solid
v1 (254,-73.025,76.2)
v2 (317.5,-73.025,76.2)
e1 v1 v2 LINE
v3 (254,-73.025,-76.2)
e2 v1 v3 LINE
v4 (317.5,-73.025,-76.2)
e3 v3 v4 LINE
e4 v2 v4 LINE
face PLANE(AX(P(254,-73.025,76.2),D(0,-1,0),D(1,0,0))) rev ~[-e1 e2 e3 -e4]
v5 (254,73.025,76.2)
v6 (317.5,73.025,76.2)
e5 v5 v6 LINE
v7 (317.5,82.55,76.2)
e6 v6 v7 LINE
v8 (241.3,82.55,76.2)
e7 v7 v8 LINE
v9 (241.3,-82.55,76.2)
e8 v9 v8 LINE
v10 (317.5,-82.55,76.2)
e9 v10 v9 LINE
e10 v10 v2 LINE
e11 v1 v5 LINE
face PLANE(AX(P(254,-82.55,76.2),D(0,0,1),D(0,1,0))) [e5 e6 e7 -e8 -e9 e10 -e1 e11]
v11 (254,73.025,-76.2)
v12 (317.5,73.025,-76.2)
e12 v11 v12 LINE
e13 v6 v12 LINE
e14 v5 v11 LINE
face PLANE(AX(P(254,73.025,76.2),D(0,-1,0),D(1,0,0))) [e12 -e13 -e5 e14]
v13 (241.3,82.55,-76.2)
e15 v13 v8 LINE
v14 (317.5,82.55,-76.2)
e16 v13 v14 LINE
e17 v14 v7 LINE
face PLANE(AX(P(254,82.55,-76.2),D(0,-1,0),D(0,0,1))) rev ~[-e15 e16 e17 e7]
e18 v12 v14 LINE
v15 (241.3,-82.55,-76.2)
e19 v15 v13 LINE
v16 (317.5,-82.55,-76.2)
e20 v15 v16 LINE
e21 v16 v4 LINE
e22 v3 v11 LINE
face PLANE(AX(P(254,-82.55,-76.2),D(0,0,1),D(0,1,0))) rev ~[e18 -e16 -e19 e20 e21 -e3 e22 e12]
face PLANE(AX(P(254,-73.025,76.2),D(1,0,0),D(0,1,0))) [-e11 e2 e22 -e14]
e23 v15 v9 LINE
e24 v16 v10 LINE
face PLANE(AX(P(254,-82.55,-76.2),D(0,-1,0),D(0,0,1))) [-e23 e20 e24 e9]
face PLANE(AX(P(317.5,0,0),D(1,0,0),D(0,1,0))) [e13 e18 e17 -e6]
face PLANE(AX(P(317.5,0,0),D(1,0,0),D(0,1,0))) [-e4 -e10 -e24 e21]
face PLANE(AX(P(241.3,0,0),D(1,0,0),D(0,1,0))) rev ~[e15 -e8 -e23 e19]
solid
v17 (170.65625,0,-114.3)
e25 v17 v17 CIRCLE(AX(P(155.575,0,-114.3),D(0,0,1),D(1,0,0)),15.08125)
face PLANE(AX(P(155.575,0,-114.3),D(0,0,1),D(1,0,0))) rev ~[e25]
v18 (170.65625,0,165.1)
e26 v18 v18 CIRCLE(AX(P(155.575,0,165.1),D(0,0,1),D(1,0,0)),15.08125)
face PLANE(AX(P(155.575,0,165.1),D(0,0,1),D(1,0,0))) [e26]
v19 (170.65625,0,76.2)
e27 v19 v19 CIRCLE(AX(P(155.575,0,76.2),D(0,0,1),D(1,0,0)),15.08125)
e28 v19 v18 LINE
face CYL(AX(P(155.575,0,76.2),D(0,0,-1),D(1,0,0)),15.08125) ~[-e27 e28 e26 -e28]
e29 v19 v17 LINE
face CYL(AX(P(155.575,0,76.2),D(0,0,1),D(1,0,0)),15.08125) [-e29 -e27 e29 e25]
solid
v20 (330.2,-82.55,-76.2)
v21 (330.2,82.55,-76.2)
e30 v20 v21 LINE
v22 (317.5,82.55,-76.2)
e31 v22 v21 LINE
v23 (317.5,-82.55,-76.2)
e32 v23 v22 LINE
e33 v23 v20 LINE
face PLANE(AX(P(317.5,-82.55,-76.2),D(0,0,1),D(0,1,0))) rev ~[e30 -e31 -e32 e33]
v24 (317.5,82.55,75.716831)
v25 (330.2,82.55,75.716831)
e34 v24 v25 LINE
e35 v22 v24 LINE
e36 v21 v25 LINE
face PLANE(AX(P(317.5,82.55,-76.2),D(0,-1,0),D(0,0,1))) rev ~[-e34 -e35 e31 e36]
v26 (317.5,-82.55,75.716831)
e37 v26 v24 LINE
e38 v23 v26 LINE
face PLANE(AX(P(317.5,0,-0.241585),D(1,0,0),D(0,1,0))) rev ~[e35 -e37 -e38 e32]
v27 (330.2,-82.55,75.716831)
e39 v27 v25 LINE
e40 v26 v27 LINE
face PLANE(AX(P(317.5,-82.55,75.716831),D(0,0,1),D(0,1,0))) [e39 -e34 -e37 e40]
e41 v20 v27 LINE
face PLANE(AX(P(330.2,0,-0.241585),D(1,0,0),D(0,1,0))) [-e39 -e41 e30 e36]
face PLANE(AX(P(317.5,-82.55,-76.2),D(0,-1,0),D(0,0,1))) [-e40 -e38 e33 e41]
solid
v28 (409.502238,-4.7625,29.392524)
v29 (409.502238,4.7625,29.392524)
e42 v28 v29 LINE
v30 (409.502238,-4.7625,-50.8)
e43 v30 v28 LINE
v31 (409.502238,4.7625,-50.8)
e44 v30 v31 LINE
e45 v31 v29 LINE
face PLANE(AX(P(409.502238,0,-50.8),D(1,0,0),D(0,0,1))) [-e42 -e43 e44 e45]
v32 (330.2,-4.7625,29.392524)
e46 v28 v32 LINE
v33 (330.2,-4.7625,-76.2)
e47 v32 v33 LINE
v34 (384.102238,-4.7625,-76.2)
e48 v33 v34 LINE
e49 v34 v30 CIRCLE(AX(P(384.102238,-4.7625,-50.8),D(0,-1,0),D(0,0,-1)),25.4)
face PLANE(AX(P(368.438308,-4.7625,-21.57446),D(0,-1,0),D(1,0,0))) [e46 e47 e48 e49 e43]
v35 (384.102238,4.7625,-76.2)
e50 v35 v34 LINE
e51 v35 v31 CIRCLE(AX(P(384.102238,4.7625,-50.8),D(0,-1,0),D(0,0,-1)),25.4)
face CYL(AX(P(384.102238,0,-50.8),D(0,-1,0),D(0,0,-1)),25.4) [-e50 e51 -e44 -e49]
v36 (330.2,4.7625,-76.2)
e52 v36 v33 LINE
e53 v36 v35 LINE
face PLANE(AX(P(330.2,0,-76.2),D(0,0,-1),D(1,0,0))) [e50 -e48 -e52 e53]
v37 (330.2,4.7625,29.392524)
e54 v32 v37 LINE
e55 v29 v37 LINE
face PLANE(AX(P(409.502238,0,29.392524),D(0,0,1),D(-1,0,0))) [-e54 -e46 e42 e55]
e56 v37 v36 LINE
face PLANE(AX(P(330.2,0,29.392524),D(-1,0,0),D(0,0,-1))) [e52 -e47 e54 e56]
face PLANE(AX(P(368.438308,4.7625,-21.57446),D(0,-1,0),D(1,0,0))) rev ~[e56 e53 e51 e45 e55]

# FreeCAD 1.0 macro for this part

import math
import FreeCAD as App
import Part
import Sketcher
from FreeCAD import Vector
Q = App.Units.Quantity

doc = App.newDocument("Part")
body = doc.addObject("PartDesign::Body", "Body")

# Sketch on YZ plane
sketch1 = doc.addObject("Sketcher::SketchObject", "Sketch")
body.addObject(sketch1)
sketch1.AttachmentSupport = (doc.YZ_Plane, [""])
sketch1.MapMode = "FlatFace"
sketch1.AttachmentOffset = App.Placement(Vector(0, 0, 10 * 25.4), App.Rotation())
sketch1.addGeometry([
    Part.LineSegment(Vector(-83, 76, 0), Vector(-83, -76, 0)),
    Part.LineSegment(Vector(-83, -76, 0), Vector(83, -76, 0)),
    Part.LineSegment(Vector(83, -76, 0), Vector(83, 76, 0)),
    Part.LineSegment(Vector(83, 76, 0), Vector(-83, 76, 0)),
], False)
sketch1.addConstraint([
    Sketcher.Constraint("Coincident", 0, 2, 1, 1),
    Sketcher.Constraint("Coincident", 1, 2, 2, 1),
    Sketcher.Constraint("Coincident", 2, 2, 3, 1),
    Sketcher.Constraint("Coincident", 3, 2, 0, 1),
    Sketcher.Constraint("Vertical", 0),
    Sketcher.Constraint("Horizontal", 1),
    Sketcher.Constraint("Vertical", 2),
    Sketcher.Constraint("Horizontal", 3),
    Sketcher.Constraint("Symmetric", 0, 2, 2, 2, -1, 1),
    Sketcher.Constraint("DistanceY", 0, 2, 0, 1, Q("6 in")),
    Sketcher.Constraint("DistanceX", 1, 1, 1, 2, Q("6.5 in")),
])
pad1 = doc.addObject("PartDesign::Pad", "Pad")
body.addObject(pad1)
pad1.Profile = sketch1
pad1.Type = "TwoLengths"
pad1.Length = Q("0.5 in")
pad1.Length2 = Q("2.5 in")
pad1.Reversed = True

# Sketch on XY plane
sketch2 = doc.addObject("Sketcher::SketchObject", "Sketch001")
body.addObject(sketch2)
sketch2.AttachmentSupport = (doc.XY_Plane, [""])
sketch2.MapMode = "FlatFace"
sketch2.AttachmentOffset = App.Placement(Vector(0, 0, 3 * 25.4), App.Rotation())
sketch2.addGeometry([
    Part.LineSegment(Vector(254, 73, 0), Vector(254, -73, 0)),
    Part.LineSegment(Vector(254, -73, 0), Vector(318, -73, 0)),
    Part.LineSegment(Vector(318, -73, 0), Vector(318, 73, 0)),
    Part.LineSegment(Vector(318, 73, 0), Vector(254, 73, 0)),
], False)
sketch2.addConstraint([
    Sketcher.Constraint("Coincident", 0, 2, 1, 1),
    Sketcher.Constraint("Coincident", 1, 2, 2, 1),
    Sketcher.Constraint("Coincident", 2, 2, 3, 1),
    Sketcher.Constraint("Coincident", 3, 2, 0, 1),
    Sketcher.Constraint("Vertical", 0),
    Sketcher.Constraint("Horizontal", 1),
    Sketcher.Constraint("Vertical", 2),
    Sketcher.Constraint("Horizontal", 3),
    Sketcher.Constraint("DistanceX", 1, 1, 1, 2, Q("2.5 in")),
    Sketcher.Constraint("DistanceX", -1, 1, 0, 2, Q("10 in")),
    Sketcher.Constraint("DistanceY", 0, 2, 0, 1, Q("5.75 in")),
    Sketcher.Constraint("DistanceY", 0, 2, -1, 1, Q("2.875 in")),
])
pocket1 = doc.addObject("PartDesign::Pocket", "Pocket")
body.addObject(pocket1)
pocket1.Profile = sketch2
pocket1.Type = "ThroughAll"
body2 = doc.addObject("PartDesign::Body", "Body001")

# Sketch on XY plane
sketch3 = doc.addObject("Sketcher::SketchObject", "Sketch002")
body2.addObject(sketch3)
sketch3.AttachmentSupport = (doc.getObject("XY_Plane001"), [""])
sketch3.MapMode = "FlatFace"
sketch3.AttachmentOffset = App.Placement(Vector(0, 0, 3 * 25.4), App.Rotation())
sketch3.addGeometry(Part.Circle(Vector(156, 0, 0), Vector(0, 0, 1), 15), False)
sketch3.addConstraint([
    Sketcher.Constraint("PointOnObject", 0, 3, -1),
    Sketcher.Constraint("Diameter", 0, Q("1.1875 in")),
    Sketcher.Constraint("DistanceX", -1, 1, 0, 3, Q("6.125 in")),
])
pad2 = doc.addObject("PartDesign::Pad", "Pad001")
body2.addObject(pad2)
pad2.Profile = sketch3
pad2.Type = "TwoLengths"
pad2.Length = Q("7.5 in")
pad2.Length2 = Q("3.5 in")
pad2.Reversed = True
body3 = doc.addObject("PartDesign::Body", "Body002")

# Sketch on YZ plane
sketch4 = doc.addObject("Sketcher::SketchObject", "Sketch003")
body3.addObject(sketch4)
sketch4.AttachmentSupport = (doc.getObject("YZ_Plane002"), [""])
sketch4.MapMode = "FlatFace"
sketch4.AttachmentOffset = App.Placement(Vector(0, 0, 12.5 * 25.4), App.Rotation())
sketch4.addGeometry([
    Part.LineSegment(Vector(-83, 76, 0), Vector(-83, -76, 0)),
    Part.LineSegment(Vector(-83, -76, 0), Vector(83, -76, 0)),
    Part.LineSegment(Vector(83, -76, 0), Vector(83, 76, 0)),
    Part.LineSegment(Vector(83, 76, 0), Vector(-83, 76, 0)),
], False)
sketch4.addConstraint([
    Sketcher.Constraint("Coincident", 0, 2, 1, 1),
    Sketcher.Constraint("Coincident", 1, 2, 2, 1),
    Sketcher.Constraint("Coincident", 2, 2, 3, 1),
    Sketcher.Constraint("Coincident", 3, 2, 0, 1),
    Sketcher.Constraint("Vertical", 0),
    Sketcher.Constraint("Horizontal", 1),
    Sketcher.Constraint("Vertical", 2),
    Sketcher.Constraint("Horizontal", 3),
    Sketcher.Constraint("DistanceX", 1, 1, 1, 2, Q("6.5 in")),
    Sketcher.Constraint("DistanceY", 0, 2, -1, 1, Q("3 in")),
    Sketcher.Constraint("DistanceX", 0, 2, -1, 1, Q("3.25 in")),
    Sketcher.Constraint("DistanceY", 0, 2, 0, 1, Q("151.916831 mm")),
])
pad3 = doc.addObject("PartDesign::Pad", "Pad002")
body3.addObject(pad3)
pad3.Profile = sketch4
pad3.Length = Q("0.5 in")
body4 = doc.addObject("PartDesign::Body", "Body003")

# Sketch on XZ plane
sketch5 = doc.addObject("Sketcher::SketchObject", "Sketch004")
body4.addObject(sketch5)
sketch5.AttachmentSupport = (doc.getObject("XZ_Plane003"), [""])
sketch5.MapMode = "FlatFace"
sketch5.addGeometry([
    Part.LineSegment(Vector(330, 29, 0), Vector(330, -76, 0)),  # 0
    Part.LineSegment(Vector(330, -76, 0), Vector(384, -76, 0)),  # 1
    Part.ArcOfCircle(Part.Circle(Vector(384, -51, 0), Vector(0, 0, 1), 25), math.radians(-90), math.radians(0)),  # 2
    Part.LineSegment(Vector(410, -51, 0), Vector(410, 29, 0)),  # 3
    Part.LineSegment(Vector(410, 29, 0), Vector(330, 29, 0)),  # 4
], False)
sketch5.addConstraint([
    Sketcher.Constraint("Coincident", 0, 2, 1, 1),
    Sketcher.Constraint("Tangent", 1, 2, 2, 1),
    Sketcher.Constraint("Tangent", 2, 2, 3, 1),
    Sketcher.Constraint("Coincident", 3, 2, 4, 1),
    Sketcher.Constraint("Coincident", 4, 2, 0, 1),
    Sketcher.Constraint("Vertical", 0),
    Sketcher.Constraint("Horizontal", 1),
    Sketcher.Constraint("Vertical", 3),
    Sketcher.Constraint("Horizontal", 4),
    Sketcher.Constraint("Radius", 2, Q("1 in")),
    Sketcher.Constraint("DistanceY", 2, 3, -1, 1, Q("2 in")),
    Sketcher.Constraint("DistanceX", -1, 1, 0, 2, Q("13 in")),
    Sketcher.Constraint("DistanceX", 1, 1, 1, 2, Q("53.902238 mm")),
    Sketcher.Constraint("DistanceY", 0, 2, 0, 1, Q("105.592524 mm")),
])
pad4 = doc.addObject("PartDesign::Pad", "Pad003")
body4.addObject(pad4)
pad4.Profile = sketch5
pad4.Type = "TwoLengths"
pad4.Length = Q("0.1875 in")
pad4.Length2 = Q("0.1875 in")

doc.recompute()
